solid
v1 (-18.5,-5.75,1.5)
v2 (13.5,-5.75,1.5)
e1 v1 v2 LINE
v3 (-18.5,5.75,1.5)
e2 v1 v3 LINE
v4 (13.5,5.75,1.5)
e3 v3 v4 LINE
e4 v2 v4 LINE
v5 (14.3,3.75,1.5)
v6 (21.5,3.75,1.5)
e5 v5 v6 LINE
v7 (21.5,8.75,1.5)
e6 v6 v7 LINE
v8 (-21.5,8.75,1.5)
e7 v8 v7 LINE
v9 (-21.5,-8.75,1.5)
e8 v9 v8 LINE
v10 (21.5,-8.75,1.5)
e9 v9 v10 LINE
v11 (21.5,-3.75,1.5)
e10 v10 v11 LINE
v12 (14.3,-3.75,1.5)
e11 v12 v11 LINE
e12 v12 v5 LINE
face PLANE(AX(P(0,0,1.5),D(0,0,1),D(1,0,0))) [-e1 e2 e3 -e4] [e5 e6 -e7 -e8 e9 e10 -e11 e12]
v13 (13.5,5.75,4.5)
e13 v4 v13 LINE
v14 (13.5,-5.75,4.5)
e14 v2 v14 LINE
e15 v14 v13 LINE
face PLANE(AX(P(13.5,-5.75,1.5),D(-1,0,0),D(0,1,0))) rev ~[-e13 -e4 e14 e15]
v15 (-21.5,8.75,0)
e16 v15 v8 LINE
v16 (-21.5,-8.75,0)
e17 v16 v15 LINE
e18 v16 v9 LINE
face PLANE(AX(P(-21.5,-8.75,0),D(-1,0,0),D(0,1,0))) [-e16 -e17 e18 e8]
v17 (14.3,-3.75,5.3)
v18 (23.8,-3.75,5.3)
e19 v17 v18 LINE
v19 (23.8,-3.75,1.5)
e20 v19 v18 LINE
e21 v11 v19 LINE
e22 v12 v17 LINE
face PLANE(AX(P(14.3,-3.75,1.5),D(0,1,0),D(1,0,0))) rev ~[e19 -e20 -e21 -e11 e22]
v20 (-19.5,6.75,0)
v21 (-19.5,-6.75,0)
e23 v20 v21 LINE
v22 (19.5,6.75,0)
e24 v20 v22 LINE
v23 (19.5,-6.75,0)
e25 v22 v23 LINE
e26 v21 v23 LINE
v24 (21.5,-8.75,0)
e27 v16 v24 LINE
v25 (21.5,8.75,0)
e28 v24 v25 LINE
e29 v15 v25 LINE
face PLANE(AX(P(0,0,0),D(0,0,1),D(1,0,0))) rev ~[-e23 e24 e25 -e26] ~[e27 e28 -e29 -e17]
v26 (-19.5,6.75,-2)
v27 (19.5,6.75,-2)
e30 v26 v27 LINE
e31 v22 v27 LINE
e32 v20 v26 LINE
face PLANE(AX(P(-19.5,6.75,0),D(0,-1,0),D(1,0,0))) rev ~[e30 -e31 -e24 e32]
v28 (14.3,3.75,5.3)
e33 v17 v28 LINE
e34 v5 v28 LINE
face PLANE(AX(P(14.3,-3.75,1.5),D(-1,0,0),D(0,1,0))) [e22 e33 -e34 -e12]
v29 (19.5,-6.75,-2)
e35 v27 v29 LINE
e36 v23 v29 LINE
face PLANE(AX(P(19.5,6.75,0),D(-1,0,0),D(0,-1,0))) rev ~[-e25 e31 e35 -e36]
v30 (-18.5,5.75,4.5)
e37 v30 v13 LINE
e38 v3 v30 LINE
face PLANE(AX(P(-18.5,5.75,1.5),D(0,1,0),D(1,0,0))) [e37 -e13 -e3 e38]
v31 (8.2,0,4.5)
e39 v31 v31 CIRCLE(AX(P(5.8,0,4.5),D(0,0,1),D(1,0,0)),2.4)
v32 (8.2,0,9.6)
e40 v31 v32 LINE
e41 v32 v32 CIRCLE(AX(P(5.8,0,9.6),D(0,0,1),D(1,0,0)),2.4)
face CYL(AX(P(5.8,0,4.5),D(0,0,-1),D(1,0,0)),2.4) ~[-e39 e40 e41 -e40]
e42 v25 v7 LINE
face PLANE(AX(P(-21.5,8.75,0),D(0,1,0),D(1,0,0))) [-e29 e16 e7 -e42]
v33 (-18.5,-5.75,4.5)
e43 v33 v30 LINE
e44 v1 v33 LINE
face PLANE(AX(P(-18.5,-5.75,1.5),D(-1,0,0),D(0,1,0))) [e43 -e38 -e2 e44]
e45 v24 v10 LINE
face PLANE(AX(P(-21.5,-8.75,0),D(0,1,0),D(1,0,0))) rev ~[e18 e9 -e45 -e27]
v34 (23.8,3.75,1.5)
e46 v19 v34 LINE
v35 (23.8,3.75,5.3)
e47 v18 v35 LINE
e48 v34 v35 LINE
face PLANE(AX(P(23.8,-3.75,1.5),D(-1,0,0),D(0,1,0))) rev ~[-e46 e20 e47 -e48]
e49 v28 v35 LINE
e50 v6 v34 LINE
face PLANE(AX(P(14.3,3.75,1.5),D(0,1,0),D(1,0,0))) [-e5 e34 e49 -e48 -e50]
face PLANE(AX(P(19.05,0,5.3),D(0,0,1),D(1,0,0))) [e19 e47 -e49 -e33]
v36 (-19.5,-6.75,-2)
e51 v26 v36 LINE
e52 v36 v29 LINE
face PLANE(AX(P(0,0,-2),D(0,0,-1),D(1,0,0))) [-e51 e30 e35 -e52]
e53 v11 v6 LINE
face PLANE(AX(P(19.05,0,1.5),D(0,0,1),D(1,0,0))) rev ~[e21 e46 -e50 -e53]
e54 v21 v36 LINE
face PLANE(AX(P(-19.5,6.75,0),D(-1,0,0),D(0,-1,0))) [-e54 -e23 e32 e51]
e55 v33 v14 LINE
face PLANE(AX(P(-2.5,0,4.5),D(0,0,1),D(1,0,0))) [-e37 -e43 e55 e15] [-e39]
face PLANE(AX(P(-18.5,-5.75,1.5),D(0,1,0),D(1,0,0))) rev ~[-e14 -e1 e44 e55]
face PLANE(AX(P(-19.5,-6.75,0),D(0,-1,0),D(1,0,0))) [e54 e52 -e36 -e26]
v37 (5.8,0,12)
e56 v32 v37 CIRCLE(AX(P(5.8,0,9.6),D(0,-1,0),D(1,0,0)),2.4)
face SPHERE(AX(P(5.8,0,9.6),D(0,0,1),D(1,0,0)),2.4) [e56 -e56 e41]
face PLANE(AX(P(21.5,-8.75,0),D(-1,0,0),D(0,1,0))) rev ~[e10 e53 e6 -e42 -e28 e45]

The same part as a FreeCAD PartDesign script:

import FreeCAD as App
import Part
import Sketcher
from FreeCAD import Vector
Q = App.Units.Quantity


def edges_at(feature, points):
    """Names of the edges that pass closest to the given points."""
    edges = feature.Shape.Edges
    near = lambda p: min(range(len(edges)), key=lambda i: edges[i].distToShape(Part.Vertex(*p))[0])
    return sorted({f"Edge{near(p) + 1}" for p in points})

doc = App.newDocument("Part")
body = doc.addObject("PartDesign::Body", "Body")

sketch1 = body.newObject("Sketcher::SketchObject", "Sketch")
sketch1.AttachmentSupport = (doc.getObject("XY_Plane"), [""])
sketch1.MapMode = "FlatFace"
sketch1.addGeometry(Part.LineSegment(Vector(-22, 9, 0), Vector(-22, -9, 0)), False)
sketch1.addGeometry(Part.LineSegment(Vector(-22, -9, 0), Vector(22, -9, 0)), False)
sketch1.addGeometry(Part.LineSegment(Vector(22, -9, 0), Vector(22, 9, 0)), False)
sketch1.addGeometry(Part.LineSegment(Vector(22, 9, 0), Vector(-22, 9, 0)), False)
sketch1.addConstraint(Sketcher.Constraint("Coincident", 0, 2, 1, 1))
sketch1.addConstraint(Sketcher.Constraint("Coincident", 1, 2, 2, 1))
sketch1.addConstraint(Sketcher.Constraint("Coincident", 2, 2, 3, 1))
sketch1.addConstraint(Sketcher.Constraint("Coincident", 3, 2, 0, 1))
sketch1.addConstraint(Sketcher.Constraint("Vertical", 0))
sketch1.addConstraint(Sketcher.Constraint("Horizontal", 1))
sketch1.addConstraint(Sketcher.Constraint("Vertical", 2))
sketch1.addConstraint(Sketcher.Constraint("Horizontal", 3))
sketch1.addConstraint(Sketcher.Constraint("Symmetric", 0, 2, 2, 2, -1, 1))
sketch1.addConstraint(Sketcher.Constraint("DistanceX", 1, 1, 1, 2, Q("43 mm")))
sketch1.addConstraint(Sketcher.Constraint("DistanceY", 0, 2, 0, 1, Q("17.5 mm")))
pad1 = body.newObject("PartDesign::Pad", "Pad")
pad1.Profile = sketch1
pad1.Length = 1.5

sketch2 = body.newObject("Sketcher::SketchObject", "Sketch001")
sketch2.AttachmentSupport = (doc.getObject("XY_Plane"), [""])
sketch2.MapMode = "FlatFace"
sketch2.AttachmentOffset = App.Placement(Vector(0, 0, 1.5), App.Rotation())
sketch2.addGeometry(Part.LineSegment(Vector(14, 4, 0), Vector(14, -4, 0)), False)
sketch2.addGeometry(Part.LineSegment(Vector(14, -4, 0), Vector(24, -4, 0)), False)
sketch2.addGeometry(Part.LineSegment(Vector(24, -4, 0), Vector(24, 4, 0)), False)
sketch2.addGeometry(Part.LineSegment(Vector(24, 4, 0), Vector(14, 4, 0)), False)
sketch2.addConstraint(Sketcher.Constraint("Coincident", 0, 2, 1, 1))
sketch2.addConstraint(Sketcher.Constraint("Coincident", 1, 2, 2, 1))
sketch2.addConstraint(Sketcher.Constraint("Coincident", 2, 2, 3, 1))
sketch2.addConstraint(Sketcher.Constraint("Coincident", 3, 2, 0, 1))
sketch2.addConstraint(Sketcher.Constraint("Vertical", 0))
sketch2.addConstraint(Sketcher.Constraint("Horizontal", 1))
sketch2.addConstraint(Sketcher.Constraint("Vertical", 2))
sketch2.addConstraint(Sketcher.Constraint("Horizontal", 3))
sketch2.addConstraint(Sketcher.Constraint("DistanceX", 1, 1, 1, 2, Q("9.5 mm")))
sketch2.addConstraint(Sketcher.Constraint("DistanceY", 0, 2, 0, 1, Q("7.5 mm")))
sketch2.addConstraint(Sketcher.Constraint("DistanceX", -1, 1, 0, 2, Q("14.3 mm")))
sketch2.addConstraint(Sketcher.Constraint("DistanceY", 0, 2, -1, 1, Q("3.75 mm")))
pad2 = body.newObject("PartDesign::Pad", "Pad001")
pad2.Profile = sketch2
pad2.Length = 3.8

sketch3 = body.newObject("Sketcher::SketchObject", "Sketch002")
sketch3.AttachmentSupport = (doc.getObject("XY_Plane"), [""])
sketch3.MapMode = "FlatFace"
sketch3.AttachmentOffset = App.Placement(Vector(0, 0, 1.5), App.Rotation())
sketch3.addGeometry(Part.LineSegment(Vector(-18, 6, 0), Vector(-18, -6, 0)), False)
sketch3.addGeometry(Part.LineSegment(Vector(-18, -6, 0), Vector(14, -6, 0)), False)
sketch3.addGeometry(Part.LineSegment(Vector(14, -6, 0), Vector(14, 6, 0)), False)
sketch3.addGeometry(Part.LineSegment(Vector(14, 6, 0), Vector(-18, 6, 0)), False)
sketch3.addConstraint(Sketcher.Constraint("Coincident", 0, 2, 1, 1))
sketch3.addConstraint(Sketcher.Constraint("Coincident", 1, 2, 2, 1))
sketch3.addConstraint(Sketcher.Constraint("Coincident", 2, 2, 3, 1))
sketch3.addConstraint(Sketcher.Constraint("Coincident", 3, 2, 0, 1))
sketch3.addConstraint(Sketcher.Constraint("Vertical", 0))
sketch3.addConstraint(Sketcher.Constraint("Horizontal", 1))
sketch3.addConstraint(Sketcher.Constraint("Vertical", 2))
sketch3.addConstraint(Sketcher.Constraint("Horizontal", 3))
sketch3.addConstraint(Sketcher.Constraint("DistanceX", 1, 1, 1, 2, Q("32 mm")))
sketch3.addConstraint(Sketcher.Constraint("DistanceY", 0, 2, 0, 1, Q("11.5 mm")))
sketch3.addConstraint(Sketcher.Constraint("DistanceX", 0, 2, -1, 1, Q("18.5 mm")))
sketch3.addConstraint(Sketcher.Constraint("DistanceY", 0, 2, -1, 1, Q("5.75 mm")))
pad3 = body.newObject("PartDesign::Pad", "Pad002")
pad3.Profile = sketch3
pad3.Length = 3

sketch4 = body.newObject("Sketcher::SketchObject", "Sketch003")
sketch4.AttachmentSupport = (doc.getObject("XY_Plane"), [""])
sketch4.MapMode = "FlatFace"
sketch4.addGeometry(Part.LineSegment(Vector(-20, -7, 0), Vector(-20, 7, 0)), False)
sketch4.addGeometry(Part.LineSegment(Vector(-20, 7, 0), Vector(20, 7, 0)), False)
sketch4.addGeometry(Part.LineSegment(Vector(20, 7, 0), Vector(20, -7, 0)), False)
sketch4.addGeometry(Part.LineSegment(Vector(20, -7, 0), Vector(-20, -7, 0)), False)
sketch4.addConstraint(Sketcher.Constraint("Coincident", 0, 2, 1, 1))
sketch4.addConstraint(Sketcher.Constraint("Coincident", 1, 2, 2, 1))
sketch4.addConstraint(Sketcher.Constraint("Coincident", 2, 2, 3, 1))
sketch4.addConstraint(Sketcher.Constraint("Coincident", 3, 2, 0, 1))
sketch4.addConstraint(Sketcher.Constraint("Vertical", 0))
sketch4.addConstraint(Sketcher.Constraint("Horizontal", 1))
sketch4.addConstraint(Sketcher.Constraint("Vertical", 2))
sketch4.addConstraint(Sketcher.Constraint("Horizontal", 3))
sketch4.addConstraint(Sketcher.Constraint("Symmetric", 0, 2, 2, 2, -1, 1))
sketch4.addConstraint(Sketcher.Constraint("DistanceX", 1, 1, 1, 2, Q("39 mm")))
sketch4.addConstraint(Sketcher.Constraint("DistanceY", 0, 1, 0, 2, Q("13.5 mm")))
pad4 = body.newObject("PartDesign::Pad", "Pad003")
pad4.Profile = sketch4
pad4.Length = 2
pad4.Reversed = True

sketch5 = body.newObject("Sketcher::SketchObject", "Sketch004")
sketch5.AttachmentSupport = (doc.getObject("XY_Plane"), [""])
sketch5.MapMode = "FlatFace"
sketch5.AttachmentOffset = App.Placement(Vector(0, 0, 4.5), App.Rotation())
sketch5.addGeometry(Part.Circle(Vector(5.8, 0, 0), Vector(0, 0, 1), 2.4), False)
sketch5.addConstraint(Sketcher.Constraint("PointOnObject", 0, 3, -1))
sketch5.addConstraint(Sketcher.Constraint("Diameter", 0, Q("4.8 mm")))
sketch5.addConstraint(Sketcher.Constraint("DistanceX", -1, 1, 0, 3, Q("5.8 mm")))
pad5 = body.newObject("PartDesign::Pad", "Pad004")
pad5.Profile = sketch5
pad5.Length = 7.5
doc.recompute()

fillet = body.newObject("PartDesign::Fillet", "Fillet")
fillet.Base = (pad5, edges_at(pad5, [(3.4, 0, 12)]))
fillet.Radius = 2.4

doc.recompute()
